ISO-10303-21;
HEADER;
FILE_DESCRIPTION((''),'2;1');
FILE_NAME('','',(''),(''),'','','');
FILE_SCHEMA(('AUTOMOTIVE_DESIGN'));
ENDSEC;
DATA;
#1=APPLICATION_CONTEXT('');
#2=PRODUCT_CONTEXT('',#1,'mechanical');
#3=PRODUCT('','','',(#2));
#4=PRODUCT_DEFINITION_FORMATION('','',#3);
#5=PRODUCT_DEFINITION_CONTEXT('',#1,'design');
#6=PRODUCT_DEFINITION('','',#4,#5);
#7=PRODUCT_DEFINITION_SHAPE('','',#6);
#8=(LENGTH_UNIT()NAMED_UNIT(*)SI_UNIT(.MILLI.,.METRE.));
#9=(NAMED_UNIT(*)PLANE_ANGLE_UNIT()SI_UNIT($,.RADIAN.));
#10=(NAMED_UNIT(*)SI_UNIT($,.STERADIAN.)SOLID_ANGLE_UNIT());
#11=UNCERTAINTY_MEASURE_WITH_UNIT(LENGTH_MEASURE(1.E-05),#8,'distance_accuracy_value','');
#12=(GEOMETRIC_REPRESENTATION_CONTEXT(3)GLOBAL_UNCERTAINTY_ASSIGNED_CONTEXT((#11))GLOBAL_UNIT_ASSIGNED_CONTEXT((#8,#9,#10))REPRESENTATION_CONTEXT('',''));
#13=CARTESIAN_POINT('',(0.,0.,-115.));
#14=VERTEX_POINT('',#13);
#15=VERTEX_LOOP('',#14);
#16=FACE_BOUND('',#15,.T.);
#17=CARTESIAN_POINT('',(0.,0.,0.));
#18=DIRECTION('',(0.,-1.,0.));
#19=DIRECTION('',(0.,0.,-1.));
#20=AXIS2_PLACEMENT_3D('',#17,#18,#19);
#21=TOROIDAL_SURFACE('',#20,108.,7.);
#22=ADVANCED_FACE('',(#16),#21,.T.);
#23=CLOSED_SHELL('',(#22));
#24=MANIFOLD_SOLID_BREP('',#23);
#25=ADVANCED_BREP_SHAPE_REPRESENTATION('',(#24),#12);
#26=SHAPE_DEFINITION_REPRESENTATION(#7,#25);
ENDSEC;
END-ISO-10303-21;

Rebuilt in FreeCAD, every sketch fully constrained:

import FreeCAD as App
import Part
import Sketcher

V = App.Vector
Q = App.Units.Quantity

doc = App.newDocument("Part")
body = doc.addObject("PartDesign::Body", "Body")

# Sketch on XY plane
sketch1 = doc.addObject("Sketcher::SketchObject", "Sketch")
body.addObject(sketch1)
sketch1.AttachmentSupport = (doc.XY_Plane, [""])
sketch1.MapMode = "FlatFace"
sketch1.addGeometry(Part.Circle(V(108, 0, 0), V(0, 0, 1), 7), False)
sketch1.addConstraint([
    Sketcher.Constraint("PointOnObject", 0, 3, -1),
    Sketcher.Constraint("Diameter", 0, Q("14 mm")),
    Sketcher.Constraint("DistanceX", -1, 1, 0, 3, Q("108 mm")),
])
revolution = doc.addObject("PartDesign::Revolution", "Revolution")
body.addObject(revolution)
revolution.Profile = sketch1
revolution.ReferenceAxis = (sketch1, ["V_Axis"])
revolution.Angle = 360

doc.recompute()
